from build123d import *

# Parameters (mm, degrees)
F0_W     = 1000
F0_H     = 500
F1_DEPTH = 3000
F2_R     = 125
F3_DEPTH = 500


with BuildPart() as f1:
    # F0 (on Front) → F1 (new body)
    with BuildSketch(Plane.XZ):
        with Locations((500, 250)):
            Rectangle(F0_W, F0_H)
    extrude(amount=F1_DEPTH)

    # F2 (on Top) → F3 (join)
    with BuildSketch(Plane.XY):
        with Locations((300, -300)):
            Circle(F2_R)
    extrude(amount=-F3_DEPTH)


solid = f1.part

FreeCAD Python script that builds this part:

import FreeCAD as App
import Part
import Sketcher
from FreeCAD import Vector
Q = App.Units.Quantity

doc = App.newDocument("Part")
body = doc.addObject("PartDesign::Body", "Body")

# Sketch on XZ plane
sketch1 = body.newObject("Sketcher::SketchObject", "Sketch")
sketch1.AttachmentSupport = (doc.getObject("XZ_Plane"), [""])
sketch1.MapMode = "FlatFace"
sketch1.addGeometry([
    Part.LineSegment(Vector(0, 500, 0), Vector(0, 0, 0)),
    Part.LineSegment(Vector(0, 0, 0), Vector(1000, 0, 0)),
    Part.LineSegment(Vector(1000, 0, 0), Vector(1000, 500, 0)),
    Part.LineSegment(Vector(1000, 500, 0), Vector(0, 500, 0)),
], False)
sketch1.addConstraint([
    Sketcher.Constraint("Coincident", 0, 2, 1, 1),
    Sketcher.Constraint("Coincident", 1, 2, 2, 1),
    Sketcher.Constraint("Coincident", 2, 2, 3, 1),
    Sketcher.Constraint("Coincident", 3, 2, 0, 1),
    Sketcher.Constraint("Vertical", 0),
    Sketcher.Constraint("Horizontal", 1),
    Sketcher.Constraint("Vertical", 2),
    Sketcher.Constraint("Horizontal", 3),
    Sketcher.Constraint("Coincident", 0, 2, -1, 1),
    Sketcher.Constraint("DistanceX", 1, 1, 1, 2, Q("1000 mm")),
    Sketcher.Constraint("DistanceY", 0, 2, 0, 1, Q("500 mm")),
])
pad1 = body.newObject("PartDesign::Pad", "Pad")
pad1.Profile = sketch1
pad1.Length = 3000

# Sketch on XY plane
sketch2 = body.newObject("Sketcher::SketchObject", "Sketch001")
sketch2.AttachmentSupport = (doc.getObject("XY_Plane"), [""])
sketch2.MapMode = "FlatFace"
sketch2.addGeometry(Part.Circle(Vector(300, -300, 0), Vector(0, 0, 1), 125), False)
sketch2.addConstraint([
    Sketcher.Constraint("Diameter", 0, Q("250 mm")),
    Sketcher.Constraint("DistanceX", -1, 1, 0, 3, Q("300 mm")),
    Sketcher.Constraint("DistanceY", 0, 3, -1, 1, Q("300 mm")),
])
pad2 = body.newObject("PartDesign::Pad", "Pad001")
pad2.Profile = sketch2
pad2.Length = 500
pad2.Reversed = True

doc.recompute()
